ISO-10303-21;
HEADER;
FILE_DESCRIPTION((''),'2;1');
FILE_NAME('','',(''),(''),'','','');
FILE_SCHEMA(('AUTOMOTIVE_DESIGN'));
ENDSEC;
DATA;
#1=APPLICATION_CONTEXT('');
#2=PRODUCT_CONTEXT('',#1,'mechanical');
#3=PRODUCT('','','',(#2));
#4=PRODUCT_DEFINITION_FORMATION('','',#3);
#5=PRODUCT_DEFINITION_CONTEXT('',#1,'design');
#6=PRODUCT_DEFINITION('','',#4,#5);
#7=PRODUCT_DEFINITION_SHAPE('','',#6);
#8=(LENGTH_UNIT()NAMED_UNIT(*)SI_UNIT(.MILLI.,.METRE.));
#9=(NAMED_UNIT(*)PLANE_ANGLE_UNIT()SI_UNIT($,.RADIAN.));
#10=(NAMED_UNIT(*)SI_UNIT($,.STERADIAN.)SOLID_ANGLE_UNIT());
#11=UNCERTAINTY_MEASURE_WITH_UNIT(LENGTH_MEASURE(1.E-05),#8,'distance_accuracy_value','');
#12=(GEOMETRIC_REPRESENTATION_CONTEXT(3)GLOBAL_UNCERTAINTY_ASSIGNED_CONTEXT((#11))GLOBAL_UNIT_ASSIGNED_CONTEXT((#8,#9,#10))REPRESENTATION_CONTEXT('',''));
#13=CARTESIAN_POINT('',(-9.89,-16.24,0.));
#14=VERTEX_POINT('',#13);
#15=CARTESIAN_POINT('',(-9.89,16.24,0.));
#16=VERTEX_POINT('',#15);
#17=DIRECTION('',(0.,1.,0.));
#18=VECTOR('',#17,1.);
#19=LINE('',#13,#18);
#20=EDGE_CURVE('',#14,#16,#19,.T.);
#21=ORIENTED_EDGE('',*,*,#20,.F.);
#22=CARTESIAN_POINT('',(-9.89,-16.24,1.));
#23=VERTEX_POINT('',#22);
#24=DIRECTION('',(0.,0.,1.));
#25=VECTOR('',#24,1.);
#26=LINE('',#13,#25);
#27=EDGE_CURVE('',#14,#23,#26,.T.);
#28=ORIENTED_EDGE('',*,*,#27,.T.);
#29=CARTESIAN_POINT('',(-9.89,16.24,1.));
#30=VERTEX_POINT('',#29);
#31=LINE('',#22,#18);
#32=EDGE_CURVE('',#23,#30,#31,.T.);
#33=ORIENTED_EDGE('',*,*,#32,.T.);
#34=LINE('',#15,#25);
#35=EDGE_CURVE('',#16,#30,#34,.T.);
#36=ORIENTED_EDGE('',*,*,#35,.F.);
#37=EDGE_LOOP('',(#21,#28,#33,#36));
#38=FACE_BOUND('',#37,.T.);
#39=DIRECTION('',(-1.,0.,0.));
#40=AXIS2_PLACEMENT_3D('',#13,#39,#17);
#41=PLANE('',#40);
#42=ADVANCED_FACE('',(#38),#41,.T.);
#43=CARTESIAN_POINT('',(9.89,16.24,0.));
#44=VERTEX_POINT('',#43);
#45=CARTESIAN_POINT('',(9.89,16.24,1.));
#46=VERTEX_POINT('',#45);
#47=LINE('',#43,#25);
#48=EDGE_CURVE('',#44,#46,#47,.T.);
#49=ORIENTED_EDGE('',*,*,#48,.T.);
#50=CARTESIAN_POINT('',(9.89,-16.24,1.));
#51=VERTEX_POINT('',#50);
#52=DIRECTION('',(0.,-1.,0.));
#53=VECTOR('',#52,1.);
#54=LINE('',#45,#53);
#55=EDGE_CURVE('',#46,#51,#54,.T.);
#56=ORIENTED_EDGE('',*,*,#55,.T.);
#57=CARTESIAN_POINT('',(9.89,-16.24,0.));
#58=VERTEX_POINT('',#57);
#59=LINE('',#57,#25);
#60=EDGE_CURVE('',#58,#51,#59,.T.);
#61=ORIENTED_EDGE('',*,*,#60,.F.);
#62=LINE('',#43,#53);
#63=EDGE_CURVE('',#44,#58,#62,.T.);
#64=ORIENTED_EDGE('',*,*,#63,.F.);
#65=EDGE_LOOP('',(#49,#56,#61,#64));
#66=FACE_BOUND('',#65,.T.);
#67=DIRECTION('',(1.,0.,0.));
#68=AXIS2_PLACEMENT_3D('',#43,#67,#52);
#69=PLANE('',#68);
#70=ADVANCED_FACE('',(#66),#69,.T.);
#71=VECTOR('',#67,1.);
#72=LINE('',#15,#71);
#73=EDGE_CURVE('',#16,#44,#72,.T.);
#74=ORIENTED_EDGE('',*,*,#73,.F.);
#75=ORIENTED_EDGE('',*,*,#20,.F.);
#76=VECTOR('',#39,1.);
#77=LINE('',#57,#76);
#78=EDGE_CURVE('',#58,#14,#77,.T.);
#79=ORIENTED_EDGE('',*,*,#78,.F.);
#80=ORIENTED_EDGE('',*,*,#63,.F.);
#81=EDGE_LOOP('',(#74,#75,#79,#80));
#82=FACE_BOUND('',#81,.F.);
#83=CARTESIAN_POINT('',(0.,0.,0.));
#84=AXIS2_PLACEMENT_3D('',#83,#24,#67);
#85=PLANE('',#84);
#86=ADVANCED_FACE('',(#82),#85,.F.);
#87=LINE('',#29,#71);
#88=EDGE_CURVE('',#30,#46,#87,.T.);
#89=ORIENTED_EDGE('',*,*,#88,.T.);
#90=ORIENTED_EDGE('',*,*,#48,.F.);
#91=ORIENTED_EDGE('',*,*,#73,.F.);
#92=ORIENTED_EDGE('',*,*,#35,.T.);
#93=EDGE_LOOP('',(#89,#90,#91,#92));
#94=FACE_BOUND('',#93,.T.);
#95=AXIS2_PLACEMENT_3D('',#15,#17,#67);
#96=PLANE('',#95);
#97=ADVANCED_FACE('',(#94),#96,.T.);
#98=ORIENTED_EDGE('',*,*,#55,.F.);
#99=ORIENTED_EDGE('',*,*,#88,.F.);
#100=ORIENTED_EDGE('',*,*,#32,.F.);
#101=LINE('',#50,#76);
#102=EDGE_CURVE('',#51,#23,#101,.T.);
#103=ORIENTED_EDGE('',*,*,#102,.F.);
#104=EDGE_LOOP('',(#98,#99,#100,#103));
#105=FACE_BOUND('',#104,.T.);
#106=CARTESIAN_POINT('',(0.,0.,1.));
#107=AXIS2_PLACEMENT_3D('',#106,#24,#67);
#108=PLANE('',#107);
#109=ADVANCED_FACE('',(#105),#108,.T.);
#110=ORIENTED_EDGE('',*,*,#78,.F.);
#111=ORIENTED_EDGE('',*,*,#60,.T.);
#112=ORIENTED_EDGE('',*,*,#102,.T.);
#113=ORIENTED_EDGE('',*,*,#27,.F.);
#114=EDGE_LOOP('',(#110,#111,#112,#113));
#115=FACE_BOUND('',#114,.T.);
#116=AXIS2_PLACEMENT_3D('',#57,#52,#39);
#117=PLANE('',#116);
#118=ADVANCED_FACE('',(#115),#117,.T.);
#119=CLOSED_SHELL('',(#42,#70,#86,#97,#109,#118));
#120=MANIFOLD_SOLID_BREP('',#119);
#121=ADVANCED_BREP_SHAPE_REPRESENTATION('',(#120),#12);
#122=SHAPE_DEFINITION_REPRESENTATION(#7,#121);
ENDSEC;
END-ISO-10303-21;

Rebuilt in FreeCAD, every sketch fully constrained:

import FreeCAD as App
import Part
import Sketcher
from FreeCAD import Vector

doc = App.newDocument("Part")
body = doc.addObject("PartDesign::Body", "Body")

sketch1 = doc.addObject("Sketcher::SketchObject", "Sketch")
body.addObject(sketch1)
sketch1.AttachmentSupport = (doc.XY_Plane, [""])
sketch1.MapMode = "FlatFace"
sketch1.addGeometry(Part.LineSegment(Vector(10, 16, 0), Vector(-10, 16, 0)), False)
sketch1.addGeometry(Part.LineSegment(Vector(-10, 16, 0), Vector(-10, -16, 0)), False)
sketch1.addGeometry(Part.LineSegment(Vector(-10, -16, 0), Vector(10, -16, 0)), False)
sketch1.addGeometry(Part.LineSegment(Vector(10, -16, 0), Vector(10, 16, 0)), False)
sketch1.addConstraint(Sketcher.Constraint("Coincident", 0, 2, 1, 1))
sketch1.addConstraint(Sketcher.Constraint("Coincident", 1, 2, 2, 1))
sketch1.addConstraint(Sketcher.Constraint("Coincident", 2, 2, 3, 1))
sketch1.addConstraint(Sketcher.Constraint("Coincident", 3, 2, 0, 1))
sketch1.addConstraint(Sketcher.Constraint("Horizontal", 0))
sketch1.addConstraint(Sketcher.Constraint("Vertical", 1))
sketch1.addConstraint(Sketcher.Constraint("Horizontal", 2))
sketch1.addConstraint(Sketcher.Constraint("Vertical", 3))
sketch1.addConstraint(Sketcher.Constraint("Symmetric", 0, 2, 2, 2, -1, 1))
sketch1.addConstraint(Sketcher.Constraint("DistanceX", 0, 2, 0, 1, 19.78))
sketch1.addConstraint(Sketcher.Constraint("DistanceY", 1, 2, 1, 1, 32.48))
pad1 = doc.addObject("PartDesign::Pad", "Pad")
body.addObject(pad1)
pad1.Profile = sketch1
pad1.Length = 1

doc.recompute()
